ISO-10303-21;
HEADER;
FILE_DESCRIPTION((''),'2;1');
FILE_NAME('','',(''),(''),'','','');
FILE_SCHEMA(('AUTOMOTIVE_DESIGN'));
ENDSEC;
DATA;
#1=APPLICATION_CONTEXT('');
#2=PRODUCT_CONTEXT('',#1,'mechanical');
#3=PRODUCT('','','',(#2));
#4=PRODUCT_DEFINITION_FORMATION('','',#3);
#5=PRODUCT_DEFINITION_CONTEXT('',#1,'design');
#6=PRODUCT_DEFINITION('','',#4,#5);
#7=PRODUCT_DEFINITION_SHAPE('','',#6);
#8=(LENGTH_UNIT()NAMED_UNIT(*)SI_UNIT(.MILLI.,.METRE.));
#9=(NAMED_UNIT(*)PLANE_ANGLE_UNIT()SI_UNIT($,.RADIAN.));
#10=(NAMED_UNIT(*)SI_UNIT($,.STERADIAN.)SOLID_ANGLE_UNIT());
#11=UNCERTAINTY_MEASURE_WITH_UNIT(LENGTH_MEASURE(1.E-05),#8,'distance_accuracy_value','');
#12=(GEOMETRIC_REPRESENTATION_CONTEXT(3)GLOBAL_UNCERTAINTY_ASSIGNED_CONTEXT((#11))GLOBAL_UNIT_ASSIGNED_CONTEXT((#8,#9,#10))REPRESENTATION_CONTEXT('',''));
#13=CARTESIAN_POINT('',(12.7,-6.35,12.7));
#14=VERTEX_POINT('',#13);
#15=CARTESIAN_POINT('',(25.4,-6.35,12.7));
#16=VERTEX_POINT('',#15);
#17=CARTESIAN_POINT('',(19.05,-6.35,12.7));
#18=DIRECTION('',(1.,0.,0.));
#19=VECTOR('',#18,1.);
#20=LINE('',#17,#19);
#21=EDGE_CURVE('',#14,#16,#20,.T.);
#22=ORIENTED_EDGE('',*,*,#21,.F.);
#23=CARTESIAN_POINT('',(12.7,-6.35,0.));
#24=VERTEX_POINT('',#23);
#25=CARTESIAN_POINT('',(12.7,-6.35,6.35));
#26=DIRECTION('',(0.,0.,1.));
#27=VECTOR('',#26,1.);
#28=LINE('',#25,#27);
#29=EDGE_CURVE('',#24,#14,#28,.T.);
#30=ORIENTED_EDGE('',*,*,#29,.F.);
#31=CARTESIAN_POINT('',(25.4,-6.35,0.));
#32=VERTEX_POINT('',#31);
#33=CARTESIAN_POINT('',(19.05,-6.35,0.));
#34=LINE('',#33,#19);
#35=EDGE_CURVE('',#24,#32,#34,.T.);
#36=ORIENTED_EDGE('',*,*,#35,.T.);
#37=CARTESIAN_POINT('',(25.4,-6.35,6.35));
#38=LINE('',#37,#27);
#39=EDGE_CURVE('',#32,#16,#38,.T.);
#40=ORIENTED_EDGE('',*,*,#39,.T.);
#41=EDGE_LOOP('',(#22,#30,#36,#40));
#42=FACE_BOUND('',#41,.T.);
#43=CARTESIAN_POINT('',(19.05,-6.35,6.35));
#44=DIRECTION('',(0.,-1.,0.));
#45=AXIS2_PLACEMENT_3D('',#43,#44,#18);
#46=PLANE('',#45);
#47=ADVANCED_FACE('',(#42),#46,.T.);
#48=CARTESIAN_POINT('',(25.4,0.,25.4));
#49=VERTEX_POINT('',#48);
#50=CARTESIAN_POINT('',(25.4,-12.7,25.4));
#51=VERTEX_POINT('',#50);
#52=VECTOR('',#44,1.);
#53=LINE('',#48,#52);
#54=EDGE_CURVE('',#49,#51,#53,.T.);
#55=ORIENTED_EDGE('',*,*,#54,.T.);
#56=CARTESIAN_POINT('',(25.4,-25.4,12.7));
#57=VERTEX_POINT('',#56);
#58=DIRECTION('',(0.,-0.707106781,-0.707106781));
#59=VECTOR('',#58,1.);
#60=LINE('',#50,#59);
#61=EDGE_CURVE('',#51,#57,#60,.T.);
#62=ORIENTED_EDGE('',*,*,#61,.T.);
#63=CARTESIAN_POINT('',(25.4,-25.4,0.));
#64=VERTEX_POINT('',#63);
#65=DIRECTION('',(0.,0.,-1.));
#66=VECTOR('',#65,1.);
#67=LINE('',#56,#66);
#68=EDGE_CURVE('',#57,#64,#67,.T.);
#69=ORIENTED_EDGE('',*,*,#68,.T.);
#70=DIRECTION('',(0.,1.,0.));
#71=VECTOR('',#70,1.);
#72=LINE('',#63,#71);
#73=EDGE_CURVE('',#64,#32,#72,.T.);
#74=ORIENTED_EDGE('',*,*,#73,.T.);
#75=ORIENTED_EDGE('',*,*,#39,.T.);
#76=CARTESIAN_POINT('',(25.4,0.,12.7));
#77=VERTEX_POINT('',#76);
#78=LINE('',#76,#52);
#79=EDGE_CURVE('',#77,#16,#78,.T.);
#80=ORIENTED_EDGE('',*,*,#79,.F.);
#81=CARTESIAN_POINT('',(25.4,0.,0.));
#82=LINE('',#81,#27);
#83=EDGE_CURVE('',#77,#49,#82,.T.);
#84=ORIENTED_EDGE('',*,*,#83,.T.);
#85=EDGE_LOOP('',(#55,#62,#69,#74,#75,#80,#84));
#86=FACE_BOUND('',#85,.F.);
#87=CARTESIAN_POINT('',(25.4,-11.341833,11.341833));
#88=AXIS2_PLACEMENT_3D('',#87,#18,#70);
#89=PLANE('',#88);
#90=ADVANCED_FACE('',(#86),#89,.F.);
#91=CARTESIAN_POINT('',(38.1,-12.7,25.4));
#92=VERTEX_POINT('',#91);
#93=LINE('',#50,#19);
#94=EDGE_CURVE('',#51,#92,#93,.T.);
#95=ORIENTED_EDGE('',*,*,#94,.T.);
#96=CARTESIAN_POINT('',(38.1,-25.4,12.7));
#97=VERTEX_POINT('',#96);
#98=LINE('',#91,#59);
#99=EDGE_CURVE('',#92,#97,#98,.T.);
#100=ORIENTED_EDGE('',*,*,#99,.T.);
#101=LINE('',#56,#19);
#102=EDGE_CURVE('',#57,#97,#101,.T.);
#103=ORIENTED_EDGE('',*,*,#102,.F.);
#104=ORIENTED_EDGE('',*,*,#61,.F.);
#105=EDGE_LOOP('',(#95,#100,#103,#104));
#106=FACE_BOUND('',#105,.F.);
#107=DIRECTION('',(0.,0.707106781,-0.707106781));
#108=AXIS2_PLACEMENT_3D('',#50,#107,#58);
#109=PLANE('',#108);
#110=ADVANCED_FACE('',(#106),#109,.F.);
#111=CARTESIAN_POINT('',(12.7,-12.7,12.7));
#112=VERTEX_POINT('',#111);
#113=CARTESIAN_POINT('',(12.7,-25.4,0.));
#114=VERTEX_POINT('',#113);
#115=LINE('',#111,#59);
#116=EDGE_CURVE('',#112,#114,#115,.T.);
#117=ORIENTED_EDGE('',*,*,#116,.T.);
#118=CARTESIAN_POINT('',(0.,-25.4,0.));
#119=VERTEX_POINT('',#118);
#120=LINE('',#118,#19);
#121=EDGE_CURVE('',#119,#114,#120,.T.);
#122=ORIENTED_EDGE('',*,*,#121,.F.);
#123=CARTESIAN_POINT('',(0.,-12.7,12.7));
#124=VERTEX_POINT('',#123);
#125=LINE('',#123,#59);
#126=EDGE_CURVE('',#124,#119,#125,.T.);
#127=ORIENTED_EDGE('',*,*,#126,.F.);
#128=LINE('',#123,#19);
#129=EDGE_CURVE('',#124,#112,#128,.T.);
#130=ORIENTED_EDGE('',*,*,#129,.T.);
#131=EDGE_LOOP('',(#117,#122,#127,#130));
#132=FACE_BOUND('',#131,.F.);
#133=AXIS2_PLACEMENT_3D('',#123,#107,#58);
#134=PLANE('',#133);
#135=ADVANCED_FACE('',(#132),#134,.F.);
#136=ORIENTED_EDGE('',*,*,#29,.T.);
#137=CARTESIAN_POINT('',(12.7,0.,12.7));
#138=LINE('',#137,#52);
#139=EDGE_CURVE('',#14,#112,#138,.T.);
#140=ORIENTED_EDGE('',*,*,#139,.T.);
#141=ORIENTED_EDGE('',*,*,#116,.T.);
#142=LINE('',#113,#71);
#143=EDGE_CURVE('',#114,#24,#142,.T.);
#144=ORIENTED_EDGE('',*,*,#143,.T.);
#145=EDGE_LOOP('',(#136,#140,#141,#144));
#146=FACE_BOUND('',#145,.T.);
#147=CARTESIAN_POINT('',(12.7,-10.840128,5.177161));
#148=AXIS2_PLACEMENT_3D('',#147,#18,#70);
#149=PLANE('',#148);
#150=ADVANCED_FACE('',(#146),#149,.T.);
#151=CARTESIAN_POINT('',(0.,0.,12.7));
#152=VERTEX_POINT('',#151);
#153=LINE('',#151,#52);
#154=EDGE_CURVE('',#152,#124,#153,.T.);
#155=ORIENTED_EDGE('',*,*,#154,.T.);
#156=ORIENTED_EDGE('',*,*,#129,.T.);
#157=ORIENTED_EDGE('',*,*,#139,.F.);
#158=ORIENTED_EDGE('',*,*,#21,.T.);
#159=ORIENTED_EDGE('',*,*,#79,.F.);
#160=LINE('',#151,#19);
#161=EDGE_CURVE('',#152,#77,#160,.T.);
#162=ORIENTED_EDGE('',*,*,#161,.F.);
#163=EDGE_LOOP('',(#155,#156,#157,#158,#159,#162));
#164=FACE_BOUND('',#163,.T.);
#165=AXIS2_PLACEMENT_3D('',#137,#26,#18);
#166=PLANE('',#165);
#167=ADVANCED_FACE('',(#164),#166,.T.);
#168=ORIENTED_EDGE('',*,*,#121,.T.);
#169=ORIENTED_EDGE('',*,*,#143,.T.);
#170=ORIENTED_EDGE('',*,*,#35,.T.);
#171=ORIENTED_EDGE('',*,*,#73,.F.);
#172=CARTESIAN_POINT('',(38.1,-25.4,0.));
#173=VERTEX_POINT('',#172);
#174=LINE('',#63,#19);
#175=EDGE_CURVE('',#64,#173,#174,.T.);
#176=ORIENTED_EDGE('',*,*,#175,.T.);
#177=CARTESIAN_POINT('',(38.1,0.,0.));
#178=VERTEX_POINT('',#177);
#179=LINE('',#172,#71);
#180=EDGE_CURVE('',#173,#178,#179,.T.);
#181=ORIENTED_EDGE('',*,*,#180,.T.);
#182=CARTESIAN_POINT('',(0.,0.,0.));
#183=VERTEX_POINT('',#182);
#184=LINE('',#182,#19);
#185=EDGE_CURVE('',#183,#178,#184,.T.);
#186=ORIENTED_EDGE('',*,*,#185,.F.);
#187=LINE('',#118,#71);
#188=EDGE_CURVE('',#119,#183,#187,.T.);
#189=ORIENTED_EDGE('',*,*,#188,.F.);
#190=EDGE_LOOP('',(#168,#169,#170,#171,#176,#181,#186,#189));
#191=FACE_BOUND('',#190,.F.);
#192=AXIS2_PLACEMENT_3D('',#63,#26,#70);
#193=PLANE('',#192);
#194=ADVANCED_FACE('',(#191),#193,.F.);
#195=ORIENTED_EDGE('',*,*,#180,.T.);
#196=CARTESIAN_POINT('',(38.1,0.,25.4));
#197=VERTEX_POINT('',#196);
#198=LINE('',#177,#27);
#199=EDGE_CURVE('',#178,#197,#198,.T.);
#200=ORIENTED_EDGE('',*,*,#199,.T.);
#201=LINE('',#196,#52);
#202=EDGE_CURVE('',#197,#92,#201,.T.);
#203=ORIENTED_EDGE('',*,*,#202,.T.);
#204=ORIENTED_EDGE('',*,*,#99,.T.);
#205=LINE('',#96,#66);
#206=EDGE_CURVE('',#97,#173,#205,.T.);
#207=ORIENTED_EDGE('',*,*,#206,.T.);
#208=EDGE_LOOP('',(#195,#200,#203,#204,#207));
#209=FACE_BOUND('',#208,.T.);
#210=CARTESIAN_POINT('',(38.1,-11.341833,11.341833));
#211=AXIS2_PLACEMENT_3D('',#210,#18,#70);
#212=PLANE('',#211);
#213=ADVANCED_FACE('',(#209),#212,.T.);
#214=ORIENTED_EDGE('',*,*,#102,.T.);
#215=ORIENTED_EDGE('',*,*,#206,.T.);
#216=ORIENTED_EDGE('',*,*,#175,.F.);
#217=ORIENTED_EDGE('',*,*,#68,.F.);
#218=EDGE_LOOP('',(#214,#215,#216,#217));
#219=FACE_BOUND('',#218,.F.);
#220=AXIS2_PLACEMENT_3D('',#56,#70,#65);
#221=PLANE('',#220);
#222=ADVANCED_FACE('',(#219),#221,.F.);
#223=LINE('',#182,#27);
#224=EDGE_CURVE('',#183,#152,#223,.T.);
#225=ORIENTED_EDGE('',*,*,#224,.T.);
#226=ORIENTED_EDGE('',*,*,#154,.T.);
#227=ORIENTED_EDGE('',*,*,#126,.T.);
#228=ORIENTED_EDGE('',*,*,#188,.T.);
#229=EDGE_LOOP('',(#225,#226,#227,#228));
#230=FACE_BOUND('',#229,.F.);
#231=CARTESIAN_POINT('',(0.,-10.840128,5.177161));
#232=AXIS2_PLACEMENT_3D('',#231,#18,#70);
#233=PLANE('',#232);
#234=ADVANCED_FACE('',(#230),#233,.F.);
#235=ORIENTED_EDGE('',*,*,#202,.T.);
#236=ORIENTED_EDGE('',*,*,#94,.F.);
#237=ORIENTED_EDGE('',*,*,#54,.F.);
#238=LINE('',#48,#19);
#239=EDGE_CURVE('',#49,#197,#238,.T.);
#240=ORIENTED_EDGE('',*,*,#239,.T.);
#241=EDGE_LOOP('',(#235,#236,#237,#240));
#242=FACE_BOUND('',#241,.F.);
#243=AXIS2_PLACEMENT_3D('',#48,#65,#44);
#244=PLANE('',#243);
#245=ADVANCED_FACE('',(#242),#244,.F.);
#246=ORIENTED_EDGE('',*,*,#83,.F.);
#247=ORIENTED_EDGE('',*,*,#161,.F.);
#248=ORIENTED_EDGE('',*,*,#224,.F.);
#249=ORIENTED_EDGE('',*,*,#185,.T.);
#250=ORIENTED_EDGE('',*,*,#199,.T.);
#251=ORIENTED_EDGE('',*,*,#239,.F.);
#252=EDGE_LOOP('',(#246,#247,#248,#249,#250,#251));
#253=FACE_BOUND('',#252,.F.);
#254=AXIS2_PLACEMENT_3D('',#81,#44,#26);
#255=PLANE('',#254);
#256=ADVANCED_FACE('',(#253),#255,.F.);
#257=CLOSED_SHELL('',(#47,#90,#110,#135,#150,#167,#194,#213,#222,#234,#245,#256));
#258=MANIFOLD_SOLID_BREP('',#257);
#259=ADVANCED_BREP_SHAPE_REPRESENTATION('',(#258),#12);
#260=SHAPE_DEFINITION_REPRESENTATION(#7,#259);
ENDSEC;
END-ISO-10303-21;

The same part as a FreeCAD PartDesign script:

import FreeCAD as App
import Part
import Sketcher
Q = App.Units.Quantity

doc = App.newDocument("Part")
body = doc.addObject("PartDesign::Body", "Body")

sketch1 = doc.addObject("Sketcher::SketchObject", "Sketch")
body.addObject(sketch1)
sketch1.AttachmentSupport = (doc.YZ_Plane, [""])
sketch1.MapMode = "FlatFace"
sketch1.addGeometry([
    Part.LineSegment(App.Vector(-25, 0, 0), App.Vector(0, 0, 0)),
    Part.LineSegment(App.Vector(0, 0, 0), App.Vector(0, 13, 0)),
    Part.LineSegment(App.Vector(0, 13, 0), App.Vector(-13, 13, 0)),
    Part.LineSegment(App.Vector(-13, 13, 0), App.Vector(-25, 0, 0)),
], False)
sketch1.addConstraint([
    Sketcher.Constraint("Coincident", 0, 2, 1, 1),
    Sketcher.Constraint("Coincident", 1, 2, 2, 1),
    Sketcher.Constraint("Coincident", 2, 2, 3, 1),
    Sketcher.Constraint("Coincident", 3, 2, 0, 1),
    Sketcher.Constraint("Horizontal", 0),
    Sketcher.Constraint("Vertical", 1),
    Sketcher.Constraint("Horizontal", 2),
    Sketcher.Constraint("Coincident", 0, 2, -1, 1),
    Sketcher.Constraint("Equal", 2, 1),
    Sketcher.Constraint("DistanceX", 0, 1, 0, 2, Q("1 in")),
    Sketcher.Constraint("DistanceX", 2, 2, 2, 1, Q("0.5 in")),
])
pad1 = doc.addObject("PartDesign::Pad", "Pad")
body.addObject(pad1)
pad1.Profile = sketch1
pad1.Length = Q("0.5 in")

sketch2 = doc.addObject("Sketcher::SketchObject", "Sketch001")
body.addObject(sketch2)
sketch2.AttachmentSupport = (doc.XZ_Plane, [""])
sketch2.MapMode = "FlatFace"
sketch2.addGeometry([
    Part.LineSegment(App.Vector(13, 13, 0), App.Vector(13, 0, 0)),
    Part.LineSegment(App.Vector(13, 0, 0), App.Vector(25, 0, 0)),
    Part.LineSegment(App.Vector(25, 0, 0), App.Vector(25, 13, 0)),
    Part.LineSegment(App.Vector(25, 13, 0), App.Vector(13, 13, 0)),
], False)
sketch2.addConstraint([
    Sketcher.Constraint("Coincident", 0, 2, 1, 1),
    Sketcher.Constraint("Coincident", 1, 2, 2, 1),
    Sketcher.Constraint("Coincident", 2, 2, 3, 1),
    Sketcher.Constraint("Coincident", 3, 2, 0, 1),
    Sketcher.Constraint("Vertical", 0),
    Sketcher.Constraint("Horizontal", 1),
    Sketcher.Constraint("Vertical", 2),
    Sketcher.Constraint("Horizontal", 3),
    Sketcher.Constraint("PointOnObject", 0, 2, -1),
    Sketcher.Constraint("Equal", 3, 0),
    Sketcher.Constraint("DistanceX", 1, 1, 1, 2, Q("0.5 in")),
    Sketcher.Constraint("DistanceX", -1, 1, 1, 2, Q("1 in")),
])
pad2 = doc.addObject("PartDesign::Pad", "Pad001")
body.addObject(pad2)
pad2.Profile = sketch2
pad2.Length = Q("0.25 in")

sketch3 = doc.addObject("Sketcher::SketchObject", "Sketch002")
body.addObject(sketch3)
sketch3.AttachmentSupport = (doc.YZ_Plane, [""])
sketch3.MapMode = "FlatFace"
sketch3.AttachmentOffset = App.Placement(App.Vector(0, 0, 1 * 25.4), App.Rotation())
sketch3.addGeometry([
    Part.LineSegment(App.Vector(-25, 0, 0), App.Vector(0, 0, 0)),
    Part.LineSegment(App.Vector(0, 0, 0), App.Vector(0, 25, 0)),
    Part.LineSegment(App.Vector(0, 25, 0), App.Vector(-13, 25, 0)),
    Part.LineSegment(App.Vector(-13, 25, 0), App.Vector(-25, 13, 0)),
    Part.LineSegment(App.Vector(-25, 13, 0), App.Vector(-25, 0, 0)),
], False)
sketch3.addConstraint([
    Sketcher.Constraint("Coincident", 0, 2, 1, 1),
    Sketcher.Constraint("Coincident", 1, 2, 2, 1),
    Sketcher.Constraint("Coincident", 2, 2, 3, 1),
    Sketcher.Constraint("Coincident", 3, 2, 4, 1),
    Sketcher.Constraint("Coincident", 4, 2, 0, 1),
    Sketcher.Constraint("Horizontal", 0),
    Sketcher.Constraint("Vertical", 1),
    Sketcher.Constraint("Horizontal", 2),
    Sketcher.Constraint("Vertical", 4),
    Sketcher.Constraint("Coincident", 0, 2, -1, 1),
    Sketcher.Constraint("Equal", 0, 1),
    Sketcher.Constraint("Equal", 2, 4),
    Sketcher.Constraint("DistanceX", 0, 1, 0, 2, Q("1 in")),
    Sketcher.Constraint("DistanceX", 2, 2, 2, 1, Q("0.5 in")),
])
pad3 = doc.addObject("PartDesign::Pad", "Pad002")
body.addObject(pad3)
pad3.Profile = sketch3
pad3.Length = Q("0.5 in")

doc.recompute()
